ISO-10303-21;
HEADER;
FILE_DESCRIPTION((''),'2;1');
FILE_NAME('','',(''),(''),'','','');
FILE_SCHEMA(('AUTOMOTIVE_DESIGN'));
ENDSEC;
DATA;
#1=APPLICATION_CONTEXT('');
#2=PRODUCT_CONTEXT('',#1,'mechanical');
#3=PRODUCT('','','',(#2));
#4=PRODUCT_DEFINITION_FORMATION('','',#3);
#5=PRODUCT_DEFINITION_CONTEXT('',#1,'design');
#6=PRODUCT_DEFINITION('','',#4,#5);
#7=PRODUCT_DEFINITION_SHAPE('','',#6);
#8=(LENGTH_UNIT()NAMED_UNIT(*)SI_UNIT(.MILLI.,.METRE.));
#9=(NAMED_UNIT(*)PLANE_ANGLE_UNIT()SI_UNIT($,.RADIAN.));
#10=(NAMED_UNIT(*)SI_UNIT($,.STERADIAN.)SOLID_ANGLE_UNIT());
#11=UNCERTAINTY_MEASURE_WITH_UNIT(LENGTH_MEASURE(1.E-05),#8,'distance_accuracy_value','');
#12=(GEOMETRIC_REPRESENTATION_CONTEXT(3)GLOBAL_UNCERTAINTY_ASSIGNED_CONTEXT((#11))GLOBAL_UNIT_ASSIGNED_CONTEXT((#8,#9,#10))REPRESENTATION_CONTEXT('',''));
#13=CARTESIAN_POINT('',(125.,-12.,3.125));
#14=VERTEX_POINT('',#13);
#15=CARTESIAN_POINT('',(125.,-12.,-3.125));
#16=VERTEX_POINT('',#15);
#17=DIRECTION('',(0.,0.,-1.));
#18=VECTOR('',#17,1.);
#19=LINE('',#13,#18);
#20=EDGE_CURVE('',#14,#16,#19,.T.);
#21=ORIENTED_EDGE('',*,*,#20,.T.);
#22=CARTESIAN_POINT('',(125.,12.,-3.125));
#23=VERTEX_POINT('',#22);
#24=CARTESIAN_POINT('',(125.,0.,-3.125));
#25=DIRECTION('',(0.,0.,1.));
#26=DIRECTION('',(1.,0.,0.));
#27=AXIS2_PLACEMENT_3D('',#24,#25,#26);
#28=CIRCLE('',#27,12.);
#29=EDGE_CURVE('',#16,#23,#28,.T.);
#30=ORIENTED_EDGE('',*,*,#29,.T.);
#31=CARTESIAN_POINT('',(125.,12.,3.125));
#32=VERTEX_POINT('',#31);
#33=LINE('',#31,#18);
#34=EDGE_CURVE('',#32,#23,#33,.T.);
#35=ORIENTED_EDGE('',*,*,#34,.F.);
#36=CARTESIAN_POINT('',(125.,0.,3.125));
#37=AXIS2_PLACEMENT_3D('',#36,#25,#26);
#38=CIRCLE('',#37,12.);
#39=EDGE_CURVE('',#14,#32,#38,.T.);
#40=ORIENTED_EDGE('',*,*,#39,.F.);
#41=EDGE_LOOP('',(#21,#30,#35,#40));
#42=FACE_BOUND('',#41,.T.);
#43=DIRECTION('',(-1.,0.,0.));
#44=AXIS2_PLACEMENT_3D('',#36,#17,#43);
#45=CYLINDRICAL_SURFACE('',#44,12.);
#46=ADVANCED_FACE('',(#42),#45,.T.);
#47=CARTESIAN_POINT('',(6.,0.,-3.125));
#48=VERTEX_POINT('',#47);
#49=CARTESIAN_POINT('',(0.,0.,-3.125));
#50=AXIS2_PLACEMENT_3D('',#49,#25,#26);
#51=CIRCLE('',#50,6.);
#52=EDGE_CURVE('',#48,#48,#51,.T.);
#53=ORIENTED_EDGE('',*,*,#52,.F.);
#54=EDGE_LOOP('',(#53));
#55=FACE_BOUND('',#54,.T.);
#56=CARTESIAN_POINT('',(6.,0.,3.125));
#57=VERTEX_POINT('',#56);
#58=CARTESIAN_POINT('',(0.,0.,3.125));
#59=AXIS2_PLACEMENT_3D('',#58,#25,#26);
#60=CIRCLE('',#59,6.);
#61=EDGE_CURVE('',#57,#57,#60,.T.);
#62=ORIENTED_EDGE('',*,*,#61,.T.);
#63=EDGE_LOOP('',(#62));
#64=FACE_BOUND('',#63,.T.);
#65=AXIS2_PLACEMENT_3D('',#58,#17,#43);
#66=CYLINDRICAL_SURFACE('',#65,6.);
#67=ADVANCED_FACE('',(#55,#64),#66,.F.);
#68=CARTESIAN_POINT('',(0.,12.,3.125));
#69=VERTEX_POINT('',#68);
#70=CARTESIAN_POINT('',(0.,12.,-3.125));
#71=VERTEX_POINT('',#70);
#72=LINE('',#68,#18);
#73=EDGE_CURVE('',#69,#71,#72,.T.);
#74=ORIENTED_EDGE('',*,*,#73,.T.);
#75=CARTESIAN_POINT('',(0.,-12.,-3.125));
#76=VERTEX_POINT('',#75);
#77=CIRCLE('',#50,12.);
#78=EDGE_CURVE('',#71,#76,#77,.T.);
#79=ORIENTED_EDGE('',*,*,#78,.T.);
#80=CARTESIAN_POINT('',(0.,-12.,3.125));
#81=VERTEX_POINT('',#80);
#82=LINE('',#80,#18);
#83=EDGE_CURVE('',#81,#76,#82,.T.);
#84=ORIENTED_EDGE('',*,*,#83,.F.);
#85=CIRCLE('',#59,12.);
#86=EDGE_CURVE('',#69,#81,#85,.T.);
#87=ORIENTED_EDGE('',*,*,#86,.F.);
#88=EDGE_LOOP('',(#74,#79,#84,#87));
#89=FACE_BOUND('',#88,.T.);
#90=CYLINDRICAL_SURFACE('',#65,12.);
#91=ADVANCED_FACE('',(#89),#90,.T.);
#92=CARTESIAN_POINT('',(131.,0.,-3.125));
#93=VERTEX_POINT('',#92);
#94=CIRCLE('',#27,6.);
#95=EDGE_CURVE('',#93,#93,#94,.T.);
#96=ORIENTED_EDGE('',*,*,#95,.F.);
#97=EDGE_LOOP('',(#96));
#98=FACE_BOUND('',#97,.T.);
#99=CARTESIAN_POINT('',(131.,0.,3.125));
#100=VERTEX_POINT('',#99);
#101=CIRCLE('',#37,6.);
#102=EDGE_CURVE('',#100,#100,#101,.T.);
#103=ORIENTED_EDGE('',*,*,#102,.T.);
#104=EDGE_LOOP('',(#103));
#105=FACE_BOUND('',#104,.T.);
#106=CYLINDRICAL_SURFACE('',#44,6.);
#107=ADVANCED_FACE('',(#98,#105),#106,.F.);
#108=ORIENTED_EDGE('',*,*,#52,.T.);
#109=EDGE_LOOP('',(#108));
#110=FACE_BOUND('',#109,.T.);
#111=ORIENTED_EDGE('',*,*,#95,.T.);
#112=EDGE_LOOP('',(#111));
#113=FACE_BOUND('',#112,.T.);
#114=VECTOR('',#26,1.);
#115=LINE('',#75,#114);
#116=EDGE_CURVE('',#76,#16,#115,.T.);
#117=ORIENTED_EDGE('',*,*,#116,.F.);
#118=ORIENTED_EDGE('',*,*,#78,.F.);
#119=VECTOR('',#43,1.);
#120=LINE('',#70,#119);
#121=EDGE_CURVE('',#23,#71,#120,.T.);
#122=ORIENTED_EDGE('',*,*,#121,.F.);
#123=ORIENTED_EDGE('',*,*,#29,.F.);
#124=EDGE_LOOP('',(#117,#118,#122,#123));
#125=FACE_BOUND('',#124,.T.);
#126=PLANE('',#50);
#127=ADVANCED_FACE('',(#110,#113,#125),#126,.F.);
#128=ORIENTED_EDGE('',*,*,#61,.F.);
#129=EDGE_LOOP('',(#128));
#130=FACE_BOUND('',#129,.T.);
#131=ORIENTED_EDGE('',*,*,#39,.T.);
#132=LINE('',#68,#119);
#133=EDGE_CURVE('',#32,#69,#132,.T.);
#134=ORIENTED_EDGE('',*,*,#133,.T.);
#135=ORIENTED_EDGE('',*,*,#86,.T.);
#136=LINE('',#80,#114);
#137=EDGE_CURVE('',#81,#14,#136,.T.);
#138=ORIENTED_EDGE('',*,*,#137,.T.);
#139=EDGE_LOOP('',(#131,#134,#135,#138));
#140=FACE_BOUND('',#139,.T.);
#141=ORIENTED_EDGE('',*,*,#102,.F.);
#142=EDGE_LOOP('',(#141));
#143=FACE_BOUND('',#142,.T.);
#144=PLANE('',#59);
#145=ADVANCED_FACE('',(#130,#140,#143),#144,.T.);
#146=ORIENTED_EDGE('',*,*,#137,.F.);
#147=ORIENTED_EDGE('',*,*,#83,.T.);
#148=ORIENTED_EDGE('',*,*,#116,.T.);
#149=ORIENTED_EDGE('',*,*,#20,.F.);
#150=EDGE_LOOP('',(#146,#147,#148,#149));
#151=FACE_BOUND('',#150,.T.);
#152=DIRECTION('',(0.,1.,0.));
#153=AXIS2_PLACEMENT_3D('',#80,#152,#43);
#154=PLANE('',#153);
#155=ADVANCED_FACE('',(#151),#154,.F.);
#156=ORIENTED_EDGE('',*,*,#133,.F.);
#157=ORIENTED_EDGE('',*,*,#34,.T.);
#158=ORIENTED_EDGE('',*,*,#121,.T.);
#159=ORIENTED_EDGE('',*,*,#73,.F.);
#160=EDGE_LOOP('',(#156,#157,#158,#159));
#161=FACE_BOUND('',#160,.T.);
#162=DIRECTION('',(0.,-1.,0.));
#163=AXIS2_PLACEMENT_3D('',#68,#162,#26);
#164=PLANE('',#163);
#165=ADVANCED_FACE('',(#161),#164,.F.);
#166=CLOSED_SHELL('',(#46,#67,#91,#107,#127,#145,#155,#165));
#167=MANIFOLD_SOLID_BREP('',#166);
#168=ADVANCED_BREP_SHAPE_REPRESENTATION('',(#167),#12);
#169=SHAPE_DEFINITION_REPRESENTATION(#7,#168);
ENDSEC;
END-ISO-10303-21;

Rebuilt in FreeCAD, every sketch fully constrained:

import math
import FreeCAD as App
import Part
import Sketcher

V = App.Vector

doc = App.newDocument("Part")
params = doc.addObject("Spreadsheet::Sheet", "Params")
for row, (alias, value) in enumerate([
    ("sketch1_diameter", "12 mm"),
    ("sketch1_radius", "12 mm"),
    ("sketch1_width", "125 mm"),
    ("pad1_length", "6.25 mm"),
], start=1):
    params.set(f"A{row}", alias)
    params.set(f"B{row}", "=" + value)
    params.setAlias(f"B{row}", alias)

body = doc.addObject("PartDesign::Body", "Body")

# Sketch on XY plane
sketch1 = body.newObject("Sketcher::SketchObject", "Sketch")
sketch1.AttachmentSupport = (doc.getObject("XY_Plane"), [""])
sketch1.MapMode = "FlatFace"
sketch1.addGeometry([
    Part.LineSegment(V(125, 12, 0), V(0, 12, 0)),  # 0
    Part.ArcOfCircle(Part.Circle(V(0, 0, 0), V(0, 0, 1), 12), math.radians(90), math.radians(270)),  # 1
    Part.LineSegment(V(0, -12, 0), V(125, -12, 0)),  # 2
    Part.ArcOfCircle(Part.Circle(V(125, 0, 0), V(0, 0, 1), 12), math.radians(-90), math.radians(90)),  # 3
    Part.Circle(V(125, 0, 0), V(0, 0, 1), 6),  # 4
    Part.Circle(V(0, 0, 0), V(0, 0, 1), 6),  # 5
], False)
sketch1.addConstraint([
    Sketcher.Constraint("Tangent", 0, 2, 1, 1),
    Sketcher.Constraint("Tangent", 1, 2, 2, 1),
    Sketcher.Constraint("Tangent", 2, 2, 3, 1),
    Sketcher.Constraint("Tangent", 3, 2, 0, 1),
    Sketcher.Constraint("Horizontal", 0),
    Sketcher.Constraint("Horizontal", 2),
    Sketcher.Constraint("Coincident", 1, 3, -1, 1),
    Sketcher.Constraint("Coincident", 5, 3, -1, 1),
    Sketcher.Constraint("Coincident", 4, 3, 3, 3),
    Sketcher.Constraint("Equal", 4, 5),
    Sketcher.Constraint("Diameter", 4, 12.0),
    Sketcher.Constraint("Radius", 1, 12.0),
    Sketcher.Constraint("DistanceX", 0, 2, 0, 1, 125.0),
])
sketch1.setExpression("Constraints[10]", "Params.sketch1_diameter")
sketch1.setExpression("Constraints[11]", "Params.sketch1_radius")
sketch1.setExpression("Constraints[12]", "Params.sketch1_width")
pad1 = body.newObject("PartDesign::Pad", "Pad")
pad1.Profile = sketch1
pad1.setExpression("Length", "Params.pad1_length")
pad1.Midplane = True

doc.recompute()
